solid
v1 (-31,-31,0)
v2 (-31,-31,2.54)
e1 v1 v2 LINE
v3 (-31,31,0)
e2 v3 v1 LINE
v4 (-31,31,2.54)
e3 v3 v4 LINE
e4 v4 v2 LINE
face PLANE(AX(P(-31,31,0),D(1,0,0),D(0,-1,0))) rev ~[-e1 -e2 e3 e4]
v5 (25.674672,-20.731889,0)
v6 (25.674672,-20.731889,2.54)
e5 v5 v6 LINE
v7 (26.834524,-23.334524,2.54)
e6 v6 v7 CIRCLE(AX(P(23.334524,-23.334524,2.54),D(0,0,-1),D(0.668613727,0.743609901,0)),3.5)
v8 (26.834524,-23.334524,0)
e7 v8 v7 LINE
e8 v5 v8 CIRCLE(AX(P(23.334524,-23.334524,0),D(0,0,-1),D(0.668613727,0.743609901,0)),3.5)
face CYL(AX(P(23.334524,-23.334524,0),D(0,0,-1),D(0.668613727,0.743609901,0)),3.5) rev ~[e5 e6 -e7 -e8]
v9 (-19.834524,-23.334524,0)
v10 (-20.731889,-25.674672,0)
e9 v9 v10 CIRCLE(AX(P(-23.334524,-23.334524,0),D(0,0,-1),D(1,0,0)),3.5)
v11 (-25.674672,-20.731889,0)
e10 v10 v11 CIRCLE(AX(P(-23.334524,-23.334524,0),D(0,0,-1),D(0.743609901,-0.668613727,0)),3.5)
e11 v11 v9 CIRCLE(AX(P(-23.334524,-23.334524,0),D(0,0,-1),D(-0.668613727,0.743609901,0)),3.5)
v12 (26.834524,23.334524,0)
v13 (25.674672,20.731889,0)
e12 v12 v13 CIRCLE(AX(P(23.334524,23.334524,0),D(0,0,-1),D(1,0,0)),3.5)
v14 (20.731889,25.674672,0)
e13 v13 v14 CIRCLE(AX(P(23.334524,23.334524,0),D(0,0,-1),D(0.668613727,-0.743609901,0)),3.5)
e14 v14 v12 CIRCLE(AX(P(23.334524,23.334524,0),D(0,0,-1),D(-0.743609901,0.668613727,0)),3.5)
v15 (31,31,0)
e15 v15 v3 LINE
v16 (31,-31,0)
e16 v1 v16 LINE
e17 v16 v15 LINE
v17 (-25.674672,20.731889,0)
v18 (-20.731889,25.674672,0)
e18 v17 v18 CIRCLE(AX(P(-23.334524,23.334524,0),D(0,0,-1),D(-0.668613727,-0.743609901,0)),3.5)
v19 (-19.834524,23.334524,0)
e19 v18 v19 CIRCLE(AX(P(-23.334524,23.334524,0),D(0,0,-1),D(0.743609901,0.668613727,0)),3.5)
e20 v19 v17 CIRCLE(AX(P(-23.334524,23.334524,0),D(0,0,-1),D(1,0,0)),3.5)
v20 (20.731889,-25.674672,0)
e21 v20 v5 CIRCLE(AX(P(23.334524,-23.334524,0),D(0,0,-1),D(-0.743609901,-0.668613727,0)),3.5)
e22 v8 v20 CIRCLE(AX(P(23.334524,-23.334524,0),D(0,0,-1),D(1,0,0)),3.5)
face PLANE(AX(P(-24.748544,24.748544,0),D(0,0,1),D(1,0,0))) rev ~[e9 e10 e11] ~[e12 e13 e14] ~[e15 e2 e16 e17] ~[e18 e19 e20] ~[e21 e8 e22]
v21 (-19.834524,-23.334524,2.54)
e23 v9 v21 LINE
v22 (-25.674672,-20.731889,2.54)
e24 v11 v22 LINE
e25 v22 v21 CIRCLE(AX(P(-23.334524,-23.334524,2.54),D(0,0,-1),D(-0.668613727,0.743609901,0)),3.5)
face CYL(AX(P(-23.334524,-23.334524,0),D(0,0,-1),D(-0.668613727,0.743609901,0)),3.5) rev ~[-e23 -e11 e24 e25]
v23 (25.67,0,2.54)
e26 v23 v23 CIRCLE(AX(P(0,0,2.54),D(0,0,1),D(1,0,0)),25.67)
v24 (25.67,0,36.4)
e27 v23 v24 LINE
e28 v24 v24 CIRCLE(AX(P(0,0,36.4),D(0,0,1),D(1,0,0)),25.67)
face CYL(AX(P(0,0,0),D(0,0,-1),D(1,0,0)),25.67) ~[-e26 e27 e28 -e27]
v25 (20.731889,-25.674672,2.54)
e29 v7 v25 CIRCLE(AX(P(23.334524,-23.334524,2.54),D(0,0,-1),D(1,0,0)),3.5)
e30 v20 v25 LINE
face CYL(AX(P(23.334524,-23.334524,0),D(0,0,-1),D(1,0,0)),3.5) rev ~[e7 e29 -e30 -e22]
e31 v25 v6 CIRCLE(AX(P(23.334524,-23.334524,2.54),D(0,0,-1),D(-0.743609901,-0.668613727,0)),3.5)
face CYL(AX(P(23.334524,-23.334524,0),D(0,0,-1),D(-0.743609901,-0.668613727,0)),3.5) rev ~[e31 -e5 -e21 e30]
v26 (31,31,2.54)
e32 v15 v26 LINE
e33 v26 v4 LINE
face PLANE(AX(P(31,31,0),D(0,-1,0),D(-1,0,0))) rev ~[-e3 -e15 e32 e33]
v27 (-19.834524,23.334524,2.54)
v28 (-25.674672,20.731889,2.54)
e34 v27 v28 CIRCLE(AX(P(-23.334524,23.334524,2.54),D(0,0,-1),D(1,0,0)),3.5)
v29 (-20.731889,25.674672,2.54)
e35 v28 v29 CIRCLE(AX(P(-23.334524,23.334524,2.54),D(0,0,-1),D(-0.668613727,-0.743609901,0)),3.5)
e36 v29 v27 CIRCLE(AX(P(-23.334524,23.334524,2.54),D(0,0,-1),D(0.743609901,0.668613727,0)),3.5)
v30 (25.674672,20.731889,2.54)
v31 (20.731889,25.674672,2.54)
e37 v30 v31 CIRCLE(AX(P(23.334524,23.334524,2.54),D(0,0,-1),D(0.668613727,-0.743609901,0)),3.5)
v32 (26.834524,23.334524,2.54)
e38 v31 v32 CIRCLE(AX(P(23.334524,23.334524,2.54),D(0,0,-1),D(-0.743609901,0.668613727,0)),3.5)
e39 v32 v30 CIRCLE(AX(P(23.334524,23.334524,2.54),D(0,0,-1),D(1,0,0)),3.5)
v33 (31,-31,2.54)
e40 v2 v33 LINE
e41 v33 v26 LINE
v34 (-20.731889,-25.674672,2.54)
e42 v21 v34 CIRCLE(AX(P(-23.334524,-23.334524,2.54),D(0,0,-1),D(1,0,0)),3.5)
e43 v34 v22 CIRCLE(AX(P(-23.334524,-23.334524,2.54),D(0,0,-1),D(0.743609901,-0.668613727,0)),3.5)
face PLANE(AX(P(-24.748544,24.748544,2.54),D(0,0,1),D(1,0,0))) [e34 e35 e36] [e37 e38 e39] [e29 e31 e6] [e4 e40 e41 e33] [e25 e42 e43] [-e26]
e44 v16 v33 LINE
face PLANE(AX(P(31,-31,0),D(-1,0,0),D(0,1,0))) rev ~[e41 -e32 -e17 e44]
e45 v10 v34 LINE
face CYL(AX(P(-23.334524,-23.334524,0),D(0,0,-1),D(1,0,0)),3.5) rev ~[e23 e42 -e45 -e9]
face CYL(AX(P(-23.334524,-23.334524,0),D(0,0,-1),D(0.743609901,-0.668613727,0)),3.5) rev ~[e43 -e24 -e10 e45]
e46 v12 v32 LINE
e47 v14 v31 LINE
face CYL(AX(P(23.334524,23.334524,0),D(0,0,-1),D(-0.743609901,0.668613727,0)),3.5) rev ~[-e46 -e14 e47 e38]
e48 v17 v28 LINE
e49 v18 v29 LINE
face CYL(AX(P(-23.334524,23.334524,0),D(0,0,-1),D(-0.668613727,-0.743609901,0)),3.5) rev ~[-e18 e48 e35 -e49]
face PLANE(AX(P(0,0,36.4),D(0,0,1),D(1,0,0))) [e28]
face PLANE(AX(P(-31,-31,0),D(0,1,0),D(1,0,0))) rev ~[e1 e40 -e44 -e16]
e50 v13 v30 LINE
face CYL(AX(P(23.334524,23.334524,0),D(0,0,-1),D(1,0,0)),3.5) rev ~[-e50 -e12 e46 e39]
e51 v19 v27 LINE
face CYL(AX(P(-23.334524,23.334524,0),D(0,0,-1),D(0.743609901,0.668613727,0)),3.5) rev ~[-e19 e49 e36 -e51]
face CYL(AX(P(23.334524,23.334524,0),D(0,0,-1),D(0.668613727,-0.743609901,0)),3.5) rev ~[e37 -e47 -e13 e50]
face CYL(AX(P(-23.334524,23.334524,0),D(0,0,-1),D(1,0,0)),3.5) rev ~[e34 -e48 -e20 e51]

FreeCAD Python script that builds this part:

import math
import FreeCAD as App
import Part
import Sketcher
Q = App.Units.Quantity

doc = App.newDocument("Part")
body = doc.addObject("PartDesign::Body", "Body")

sketch1 = body.newObject("Sketcher::SketchObject", "Sketch")
sketch1.AttachmentSupport = (doc.getObject("XY_Plane"), [""])
sketch1.MapMode = "FlatFace"
sketch1.addGeometry([
    Part.LineSegment(App.Vector(-31, 31, 0), App.Vector(-31, -31, 0)),
    Part.LineSegment(App.Vector(-31, -31, 0), App.Vector(31, -31, 0)),
    Part.LineSegment(App.Vector(31, -31, 0), App.Vector(31, 31, 0)),
    Part.LineSegment(App.Vector(31, 31, 0), App.Vector(-31, 31, 0)),
    Part.ArcOfCircle(Part.Circle(App.Vector(23.334524, 23.334524, 0), App.Vector(0, 0, 1), 3.5), math.radians(138.039838), math.radians(311.960162)),
    Part.ArcOfCircle(Part.Circle(App.Vector(23.334524, 23.334524, 0), App.Vector(0, 0, 1), 3.5), math.radians(0), math.radians(138.039838)),
    Part.ArcOfCircle(Part.Circle(App.Vector(23.334524, 23.334524, 0), App.Vector(0, 0, 1), 3.5), math.radians(-48.039838), math.radians(0)),
    Part.ArcOfCircle(Part.Circle(App.Vector(23.334524, -23.334524, 0), App.Vector(0, 0, 1), 3.5), math.radians(48.039838), math.radians(221.960162)),
    Part.ArcOfCircle(Part.Circle(App.Vector(23.334524, -23.334524, 0), App.Vector(0, 0, 1), 3.5), math.radians(0), math.radians(48.039838)),
    Part.ArcOfCircle(Part.Circle(App.Vector(23.334524, -23.334524, 0), App.Vector(0, 0, 1), 3.5), math.radians(-138.039838), math.radians(0)),
    Part.ArcOfCircle(Part.Circle(App.Vector(-23.334524, -23.334524, 0), App.Vector(0, 0, 1), 3.5), math.radians(0), math.radians(131.960162)),
    Part.ArcOfCircle(Part.Circle(App.Vector(-23.334524, -23.334524, 0), App.Vector(0, 0, 1), 3.5), math.radians(-41.960162), math.radians(0)),
    Part.ArcOfCircle(Part.Circle(App.Vector(-23.334524, -23.334524, 0), App.Vector(0, 0, 1), 3.5), math.radians(131.960162), math.radians(318.039838)),
    Part.Circle(App.Vector(0, 0, 0), App.Vector(0, 0, 1), 25.67),
    Part.ArcOfCircle(Part.Circle(App.Vector(-23.334524, 23.334524, 0), App.Vector(0, 0, 1), 3.5), math.radians(41.960162), math.radians(228.039838)),
    Part.ArcOfCircle(Part.Circle(App.Vector(-23.334524, 23.334524, 0), App.Vector(0, 0, 1), 3.5), math.radians(0), math.radians(41.960162)),
    Part.ArcOfCircle(Part.Circle(App.Vector(-23.334524, 23.334524, 0), App.Vector(0, 0, 1), 3.5), math.radians(-131.960162), math.radians(0)),
], False)
sketch1.addConstraint([
    Sketcher.Constraint("Coincident", 0, 2, 1, 1),
    Sketcher.Constraint("Coincident", 1, 2, 2, 1),
    Sketcher.Constraint("Coincident", 2, 2, 3, 1),
    Sketcher.Constraint("Coincident", 3, 2, 0, 1),
    Sketcher.Constraint("Tangent", 4, 1, 5, 2),
    Sketcher.Constraint("Tangent", 5, 1, 6, 2),
    Sketcher.Constraint("Tangent", 6, 1, 4, 2),
    Sketcher.Constraint("Tangent", 7, 1, 8, 2),
    Sketcher.Constraint("Tangent", 8, 1, 9, 2),
    Sketcher.Constraint("Tangent", 9, 1, 7, 2),
    Sketcher.Constraint("Tangent", 10, 1, 11, 2),
    Sketcher.Constraint("Tangent", 11, 1, 12, 2),
    Sketcher.Constraint("Tangent", 12, 1, 10, 2),
    Sketcher.Constraint("Tangent", 14, 1, 15, 2),
    Sketcher.Constraint("Tangent", 15, 1, 16, 2),
    Sketcher.Constraint("Tangent", 16, 1, 14, 2),
    Sketcher.Constraint("Vertical", 0),
    Sketcher.Constraint("Horizontal", 1),
    Sketcher.Constraint("Vertical", 2),
    Sketcher.Constraint("Horizontal", 3),
    Sketcher.Constraint("Coincident", 13, 3, -1, 1),
    Sketcher.Constraint("Equal", 6, 7),
    Sketcher.Constraint("Equal", 9, 10),
    Sketcher.Constraint("Equal", 12, 14),
    Sketcher.Constraint("Symmetric", 4, 3, 10, 3, -1, 1),
    Sketcher.Constraint("Symmetric", 7, 3, 14, 3, -1, 1),
    Sketcher.Constraint("Symmetric", 0, 2, 2, 2, -1, 1),
    Sketcher.Constraint("Symmetric", 7, 3, 10, 3, -2),
    Sketcher.Constraint("Horizontal", 16, 3, 5, 1),
    Sketcher.Constraint("Horizontal", 12, 3, 8, 1),
    Sketcher.Constraint("Horizontal", 8, 1, 10, 1),
    Sketcher.Constraint("Horizontal", 9, 1, 11, 1),
    Sketcher.Constraint("Horizontal", 7, 1, 12, 1),
    Sketcher.Constraint("Horizontal", 4, 1, 14, 1),
    Sketcher.Constraint("Horizontal", 5, 1, 15, 1),
    Sketcher.Constraint("Horizontal", 6, 1, 16, 1),
    Sketcher.Constraint("Vertical", 6, 1, 7, 1),
    Sketcher.Constraint("Vertical", 4, 1, 9, 1),
    Sketcher.Constraint("Equal", 3, 0),
    Sketcher.Constraint("Radius", 4, Q("3.5 mm")),
    Sketcher.Constraint("Diameter", 13, Q("51.34 mm")),
    Sketcher.Constraint("DistanceX", 1, 1, 1, 2, Q("62 mm")),
    Sketcher.Constraint("DistanceX", -1, 1, 4, 1, Q("20.731889 mm")),
    Sketcher.Constraint("DistanceY", -1, 1, 4, 1, Q("25.674672 mm")),
    Sketcher.Constraint("DistanceX", -1, 1, 6, 1, Q("25.674672 mm")),
    Sketcher.Constraint("DistanceY", -1, 1, 6, 1, Q("20.731889 mm")),
])
pad1 = body.newObject("PartDesign::Pad", "Pad")
pad1.Profile = sketch1
pad1.Length = 2.54

sketch2 = body.newObject("Sketcher::SketchObject", "Sketch001")
sketch2.AttachmentSupport = (doc.getObject("XY_Plane"), [""])
sketch2.MapMode = "FlatFace"
sketch2.addGeometry(Part.Circle(App.Vector(0, 0, 0), App.Vector(0, 0, 1), 25.67), False)
sketch2.addConstraint([
    Sketcher.Constraint("Coincident", 0, 3, -1, 1),
    Sketcher.Constraint("Diameter", 0, Q("51.34 mm")),
])
pad2 = body.newObject("PartDesign::Pad", "Pad001")
pad2.Profile = sketch2
pad2.Length = 36.4

doc.recompute()
